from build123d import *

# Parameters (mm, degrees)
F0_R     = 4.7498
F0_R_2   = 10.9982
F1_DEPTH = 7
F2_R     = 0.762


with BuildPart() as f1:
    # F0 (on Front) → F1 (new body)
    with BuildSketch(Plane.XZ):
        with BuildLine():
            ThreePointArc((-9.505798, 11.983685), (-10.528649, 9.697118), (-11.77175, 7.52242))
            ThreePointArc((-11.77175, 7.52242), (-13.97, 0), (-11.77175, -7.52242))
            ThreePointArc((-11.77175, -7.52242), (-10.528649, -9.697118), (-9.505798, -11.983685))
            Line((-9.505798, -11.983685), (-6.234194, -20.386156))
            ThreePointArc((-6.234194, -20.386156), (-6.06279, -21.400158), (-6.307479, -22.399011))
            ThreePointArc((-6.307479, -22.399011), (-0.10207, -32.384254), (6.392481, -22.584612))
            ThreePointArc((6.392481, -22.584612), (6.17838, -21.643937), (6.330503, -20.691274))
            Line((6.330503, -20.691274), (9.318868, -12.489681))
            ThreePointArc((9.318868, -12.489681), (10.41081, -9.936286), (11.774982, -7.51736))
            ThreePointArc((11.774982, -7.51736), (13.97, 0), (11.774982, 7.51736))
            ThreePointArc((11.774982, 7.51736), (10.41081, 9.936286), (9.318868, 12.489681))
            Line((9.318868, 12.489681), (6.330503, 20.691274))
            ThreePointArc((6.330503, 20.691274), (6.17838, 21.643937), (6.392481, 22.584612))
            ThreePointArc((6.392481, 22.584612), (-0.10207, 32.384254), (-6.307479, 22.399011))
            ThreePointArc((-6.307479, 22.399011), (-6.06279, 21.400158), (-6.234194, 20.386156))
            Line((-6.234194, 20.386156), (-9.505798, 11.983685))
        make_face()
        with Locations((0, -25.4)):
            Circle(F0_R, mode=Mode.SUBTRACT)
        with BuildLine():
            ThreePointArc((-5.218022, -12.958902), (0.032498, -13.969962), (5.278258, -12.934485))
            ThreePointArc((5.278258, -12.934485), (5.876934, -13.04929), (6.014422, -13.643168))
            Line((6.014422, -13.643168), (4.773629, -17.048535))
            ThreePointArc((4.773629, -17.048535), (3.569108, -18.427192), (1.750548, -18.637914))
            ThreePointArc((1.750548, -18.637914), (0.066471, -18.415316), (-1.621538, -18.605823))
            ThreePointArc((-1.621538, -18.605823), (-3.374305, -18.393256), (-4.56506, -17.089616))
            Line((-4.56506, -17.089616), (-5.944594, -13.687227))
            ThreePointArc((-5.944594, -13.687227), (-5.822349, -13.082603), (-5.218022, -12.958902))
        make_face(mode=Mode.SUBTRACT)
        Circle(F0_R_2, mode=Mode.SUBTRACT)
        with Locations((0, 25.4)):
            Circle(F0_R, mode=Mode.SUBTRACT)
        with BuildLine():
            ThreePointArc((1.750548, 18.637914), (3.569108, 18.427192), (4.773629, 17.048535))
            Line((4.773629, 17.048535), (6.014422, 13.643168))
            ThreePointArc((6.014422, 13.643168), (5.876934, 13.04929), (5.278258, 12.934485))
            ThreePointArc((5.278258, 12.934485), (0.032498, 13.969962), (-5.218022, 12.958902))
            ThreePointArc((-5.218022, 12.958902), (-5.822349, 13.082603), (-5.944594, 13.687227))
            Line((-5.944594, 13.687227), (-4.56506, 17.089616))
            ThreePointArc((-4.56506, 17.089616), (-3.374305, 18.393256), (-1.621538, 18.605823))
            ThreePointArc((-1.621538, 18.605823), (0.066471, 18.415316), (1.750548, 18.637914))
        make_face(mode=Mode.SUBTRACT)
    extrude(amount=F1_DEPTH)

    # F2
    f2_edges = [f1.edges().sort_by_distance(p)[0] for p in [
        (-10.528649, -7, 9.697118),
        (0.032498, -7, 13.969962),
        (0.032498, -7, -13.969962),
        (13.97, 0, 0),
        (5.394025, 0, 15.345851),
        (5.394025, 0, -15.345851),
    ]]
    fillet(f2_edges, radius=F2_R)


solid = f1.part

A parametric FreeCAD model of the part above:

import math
import FreeCAD as App
import Part
import Sketcher
from FreeCAD import Vector
Q = App.Units.Quantity


def edges_at(feature, points):
    """Names of the edges that pass closest to the given points."""
    edges = feature.Shape.Edges
    near = lambda p: min(range(len(edges)), key=lambda i: edges[i].distToShape(Part.Vertex(*p))[0])
    return sorted({f"Edge{near(p) + 1}" for p in points})

doc = App.newDocument("Part")
body = doc.addObject("PartDesign::Body", "Body")

sketch1 = body.newObject("Sketcher::SketchObject", "Sketch")
sketch1.AttachmentSupport = (doc.getObject("XZ_Plane"), [""])
sketch1.MapMode = "FlatFace"
sketch1.addGeometry([
    Part.ArcOfCircle(Part.Circle(Vector(-33.2, 21.2, 0), Vector(0, 0, 1), 25.4), math.radians(-32.58), math.radians(-21.27)),
    Part.ArcOfCircle(Part.Circle(Vector(0, 0, 0), Vector(0, 0, 1), 14), math.radians(147), math.radians(213)),
    Part.ArcOfCircle(Part.Circle(Vector(-33.2, -21.2, 0), Vector(0, 0, 1), 25.4), math.radians(21.27), math.radians(32.58)),
    Part.LineSegment(Vector(-9.5, -12, 0), Vector(-6.2, -20.4, 0)),
    Part.ArcOfCircle(Part.Circle(Vector(-8.6, -21.3, 0), Vector(0, 0, 1), 2.5), math.radians(-25), math.radians(21)),
    Part.ArcOfCircle(Part.Circle(Vector(0, -25.4, 0), Vector(0, 0, 1), 7), math.radians(155), math.radians(384)),
    Part.ArcOfCircle(Part.Circle(Vector(8.7, -21.6, 0), Vector(0, 0, 1), 2.5), math.radians(160), math.radians(204)),
    Part.LineSegment(Vector(6.3, -20.7, 0), Vector(9.3, -12.5, 0)),
    Part.ArcOfCircle(Part.Circle(Vector(33.2, -21.2, 0), Vector(0, 0, 1), 25.4), math.radians(147.45), math.radians(159.98)),
    Part.ArcOfCircle(Part.Circle(Vector(0, 0, 0), Vector(0, 0, 1), 14), math.radians(-33), math.radians(33)),
    Part.ArcOfCircle(Part.Circle(Vector(33.2, 21.2, 0), Vector(0, 0, 1), 25.4), math.radians(-159.98), math.radians(-147.45)),
    Part.LineSegment(Vector(9.3, 12.5, 0), Vector(6.3, 20.7, 0)),
    Part.ArcOfCircle(Part.Circle(Vector(8.7, 21.6, 0), Vector(0, 0, 1), 2.5), math.radians(156), math.radians(200)),
    Part.ArcOfCircle(Part.Circle(Vector(0, 25.4, 0), Vector(0, 0, 1), 7), math.radians(-24), math.radians(205)),
    Part.ArcOfCircle(Part.Circle(Vector(-8.6, 21.3, 0), Vector(0, 0, 1), 2.5), math.radians(-21), math.radians(25)),
    Part.LineSegment(Vector(-6.2, 20.4, 0), Vector(-9.5, 12, 0)),
    Part.Circle(Vector(0, -25.4, 0), Vector(0, 0, 1), 4.7),
    Part.ArcOfCircle(Part.Circle(Vector(-5.4, -13.5, 0), Vector(0, 0, 1), 0.6), math.radians(68), math.radians(202)),
    Part.ArcOfCircle(Part.Circle(Vector(0, 0, 0), Vector(0, 0, 1), 14), math.radians(-112), math.radians(-68)),
    Part.ArcOfCircle(Part.Circle(Vector(5.5, -13.5, 0), Vector(0, 0, 1), 0.6), math.radians(-20), math.radians(112)),
    Part.LineSegment(Vector(6, -13.6, 0), Vector(4.8, -17, 0)),
    Part.ArcOfCircle(Part.Circle(Vector(2.4, -16.2, 0), Vector(0, 0, 1), 2.5), math.radians(-105), math.radians(-20)),
    Part.ArcOfCircle(Part.Circle(Vector(0, -25.4, 0), Vector(0, 0, 1), 7), math.radians(75), math.radians(103)),
    Part.ArcOfCircle(Part.Circle(Vector(-2.2, -16.1, 0), Vector(0, 0, 1), 2.5), math.radians(-158), math.radians(-77)),
    Part.LineSegment(Vector(-4.6, -17.1, 0), Vector(-5.9, -13.7, 0)),
    Part.Circle(Vector(0, 0, 0), Vector(0, 0, 1), 11),
    Part.ArcOfCircle(Part.Circle(Vector(0, 25.4, 0), Vector(0, 0, 1), 7), math.radians(-103), math.radians(-75)),
    Part.ArcOfCircle(Part.Circle(Vector(2.4, 16.2, 0), Vector(0, 0, 1), 2.5), math.radians(20), math.radians(105)),
    Part.LineSegment(Vector(4.8, 17, 0), Vector(6, 13.6, 0)),
    Part.ArcOfCircle(Part.Circle(Vector(5.5, 13.5, 0), Vector(0, 0, 1), 0.6), math.radians(-112), math.radians(20)),
    Part.ArcOfCircle(Part.Circle(Vector(0, 0, 0), Vector(0, 0, 1), 14), math.radians(68), math.radians(112)),
    Part.ArcOfCircle(Part.Circle(Vector(-5.4, 13.5, 0), Vector(0, 0, 1), 0.6), math.radians(158), math.radians(292)),
    Part.LineSegment(Vector(-5.9, 13.7, 0), Vector(-4.6, 17.1, 0)),
    Part.ArcOfCircle(Part.Circle(Vector(-2.2, 16.1, 0), Vector(0, 0, 1), 2.5), math.radians(77), math.radians(158)),
    Part.Circle(Vector(0, 25.4, 0), Vector(0, 0, 1), 4.7),
], False)
sketch1.addConstraint([
    Sketcher.Constraint("Tangent", 0, 1, 1, 1),
    Sketcher.Constraint("Tangent", 1, 2, 2, 2),
    Sketcher.Constraint("Tangent", 2, 1, 3, 1),
    Sketcher.Constraint("Tangent", 3, 2, 4, 2),
    Sketcher.Constraint("Tangent", 4, 1, 5, 1),
    Sketcher.Constraint("Tangent", 5, 2, 6, 2),
    Sketcher.Constraint("Tangent", 6, 1, 7, 1),
    Sketcher.Constraint("Tangent", 7, 2, 8, 2),
    Sketcher.Constraint("Tangent", 8, 1, 9, 1),
    Sketcher.Constraint("Tangent", 9, 2, 10, 2),
    Sketcher.Constraint("Tangent", 10, 1, 11, 1),
    Sketcher.Constraint("Tangent", 11, 2, 12, 2),
    Sketcher.Constraint("Tangent", 12, 1, 13, 1),
    Sketcher.Constraint("Tangent", 13, 2, 14, 2),
    Sketcher.Constraint("Tangent", 14, 1, 15, 1),
    Sketcher.Constraint("Tangent", 15, 2, 0, 2),
    Sketcher.Constraint("Tangent", 17, 1, 18, 1),
    Sketcher.Constraint("Tangent", 18, 2, 19, 2),
    Sketcher.Constraint("Tangent", 19, 1, 20, 1),
    Sketcher.Constraint("Tangent", 20, 2, 21, 2),
    Sketcher.Constraint("Tangent", 21, 1, 22, 1),
    Sketcher.Constraint("Tangent", 22, 2, 23, 2),
    Sketcher.Constraint("Tangent", 23, 1, 24, 1),
    Sketcher.Constraint("Tangent", 24, 2, 17, 2),
    Sketcher.Constraint("Tangent", 26, 2, 27, 2),
    Sketcher.Constraint("Tangent", 27, 1, 28, 1),
    Sketcher.Constraint("Tangent", 28, 2, 29, 2),
    Sketcher.Constraint("Tangent", 29, 1, 30, 1),
    Sketcher.Constraint("Tangent", 30, 2, 31, 2),
    Sketcher.Constraint("Tangent", 31, 1, 32, 1),
    Sketcher.Constraint("Tangent", 32, 2, 33, 2),
    Sketcher.Constraint("Tangent", 33, 1, 26, 1),
    Sketcher.Constraint("Coincident", 1, 3, -1, 1),
    Sketcher.Constraint("Coincident", 9, 3, -1, 1),
    Sketcher.Constraint("Coincident", 18, 3, -1, 1),
    Sketcher.Constraint("Coincident", 25, 3, -1, 1),
    Sketcher.Constraint("Coincident", 30, 3, -1, 1),
    Sketcher.Constraint("Coincident", 16, 3, 5, 3),
    Sketcher.Constraint("Coincident", 22, 3, 5, 3),
    Sketcher.Constraint("Coincident", 26, 3, 13, 3),
    Sketcher.Constraint("Coincident", 34, 3, 13, 3),
    Sketcher.Constraint("Equal", 0, 2),
    Sketcher.Constraint("Equal", 1, 9),
    Sketcher.Constraint("Equal", 8, 10),
    Sketcher.Constraint("Equal", 6, 12),
    Sketcher.Constraint("Equal", 5, 13),
    Sketcher.Constraint("Equal", 4, 14),
    Sketcher.Constraint("Equal", 17, 19),
    Sketcher.Constraint("Equal", 21, 23),
    Sketcher.Constraint("Equal", 22, 26),
    Sketcher.Constraint("Equal", 23, 27),
    Sketcher.Constraint("Equal", 19, 29),
    Sketcher.Constraint("Equal", 18, 30),
    Sketcher.Constraint("Equal", 29, 31),
    Sketcher.Constraint("Equal", 27, 33),
    Sketcher.Constraint("Equal", 16, 34),
    Sketcher.Constraint("Symmetric", 5, 3, 13, 3, -1, 1),
    Sketcher.Constraint("Symmetric", 6, 3, 12, 3, -1),
    Sketcher.Constraint("Symmetric", 3, 2, 14, 1, -1),
    Sketcher.Constraint("Symmetric", 20, 2, 27, 1, -1),
    Sketcher.Constraint("Symmetric", 24, 2, 31, 1, -1),
    Sketcher.Constraint("Parallel", 7, 20),
    Sketcher.Constraint("Parallel", 11, 28),
    Sketcher.Constraint("Radius", 6, Q("0.1000001 in")),
    Sketcher.Constraint("Radius", 21, Q("0.1 in")),
    Sketcher.Constraint("Radius", 1, Q("0.55 in")),
    Sketcher.Constraint("Radius", 18, Q("0.5500001 in")),
    Sketcher.Constraint("Diameter", 16, Q("0.374 in")),
    Sketcher.Constraint("Diameter", 25, Q("0.866 in")),
    Sketcher.Constraint("DistanceY", 5, 3, -1, 1, Q("1 in")),
    Sketcher.Constraint("Radius", 5, Q("0.275 in")),
    Sketcher.Constraint("Radius", 17, Q("0.022 in")),
    Sketcher.Constraint("DistanceX", 0, 3, -1, 1, Q("1.3061001 in")),
    Sketcher.Constraint("Radius", 0, 25.400013),
    Sketcher.Constraint("Radius", 4, 2.540008),
    Sketcher.Constraint("Radius", 8, 25.399893),
    Sketcher.Constraint("Radius", 22, 6.984993),
    Sketcher.Constraint("DistanceX", 0, 1, 33, 3, Q("0.3764001 in")),
    Sketcher.Constraint("DistanceY", 17, 1, -1, 1, 12.958902),
    Sketcher.Constraint("DistanceY", 4, 3, 8, 3, 0.122502),
    Sketcher.Constraint("DistanceX", 23, 3, 21, 3, 4.598299),
    Sketcher.Constraint("DistanceY", 6, 1, 21, 3, 4.512301),
    Sketcher.Constraint("DistanceY", 33, 3, 13, 2, 6.263798),
])
pad1 = body.newObject("PartDesign::Pad", "Pad")
pad1.Profile = sketch1
pad1.Length = 7
doc.recompute()

fillet = body.newObject("PartDesign::Fillet", "Fillet")
fillet.Base = (pad1, edges_at(pad1, [
    (-10.529, -7, 9.697),
    (0.032, -7, 13.97),
    (0.032, -7, -13.97),
    (13.97, 0, 0),
    (5.394, 0, 15.346),
    (5.394, 0, -15.346),
]))
fillet.Radius = Q("0.03 in")

doc.recompute()
